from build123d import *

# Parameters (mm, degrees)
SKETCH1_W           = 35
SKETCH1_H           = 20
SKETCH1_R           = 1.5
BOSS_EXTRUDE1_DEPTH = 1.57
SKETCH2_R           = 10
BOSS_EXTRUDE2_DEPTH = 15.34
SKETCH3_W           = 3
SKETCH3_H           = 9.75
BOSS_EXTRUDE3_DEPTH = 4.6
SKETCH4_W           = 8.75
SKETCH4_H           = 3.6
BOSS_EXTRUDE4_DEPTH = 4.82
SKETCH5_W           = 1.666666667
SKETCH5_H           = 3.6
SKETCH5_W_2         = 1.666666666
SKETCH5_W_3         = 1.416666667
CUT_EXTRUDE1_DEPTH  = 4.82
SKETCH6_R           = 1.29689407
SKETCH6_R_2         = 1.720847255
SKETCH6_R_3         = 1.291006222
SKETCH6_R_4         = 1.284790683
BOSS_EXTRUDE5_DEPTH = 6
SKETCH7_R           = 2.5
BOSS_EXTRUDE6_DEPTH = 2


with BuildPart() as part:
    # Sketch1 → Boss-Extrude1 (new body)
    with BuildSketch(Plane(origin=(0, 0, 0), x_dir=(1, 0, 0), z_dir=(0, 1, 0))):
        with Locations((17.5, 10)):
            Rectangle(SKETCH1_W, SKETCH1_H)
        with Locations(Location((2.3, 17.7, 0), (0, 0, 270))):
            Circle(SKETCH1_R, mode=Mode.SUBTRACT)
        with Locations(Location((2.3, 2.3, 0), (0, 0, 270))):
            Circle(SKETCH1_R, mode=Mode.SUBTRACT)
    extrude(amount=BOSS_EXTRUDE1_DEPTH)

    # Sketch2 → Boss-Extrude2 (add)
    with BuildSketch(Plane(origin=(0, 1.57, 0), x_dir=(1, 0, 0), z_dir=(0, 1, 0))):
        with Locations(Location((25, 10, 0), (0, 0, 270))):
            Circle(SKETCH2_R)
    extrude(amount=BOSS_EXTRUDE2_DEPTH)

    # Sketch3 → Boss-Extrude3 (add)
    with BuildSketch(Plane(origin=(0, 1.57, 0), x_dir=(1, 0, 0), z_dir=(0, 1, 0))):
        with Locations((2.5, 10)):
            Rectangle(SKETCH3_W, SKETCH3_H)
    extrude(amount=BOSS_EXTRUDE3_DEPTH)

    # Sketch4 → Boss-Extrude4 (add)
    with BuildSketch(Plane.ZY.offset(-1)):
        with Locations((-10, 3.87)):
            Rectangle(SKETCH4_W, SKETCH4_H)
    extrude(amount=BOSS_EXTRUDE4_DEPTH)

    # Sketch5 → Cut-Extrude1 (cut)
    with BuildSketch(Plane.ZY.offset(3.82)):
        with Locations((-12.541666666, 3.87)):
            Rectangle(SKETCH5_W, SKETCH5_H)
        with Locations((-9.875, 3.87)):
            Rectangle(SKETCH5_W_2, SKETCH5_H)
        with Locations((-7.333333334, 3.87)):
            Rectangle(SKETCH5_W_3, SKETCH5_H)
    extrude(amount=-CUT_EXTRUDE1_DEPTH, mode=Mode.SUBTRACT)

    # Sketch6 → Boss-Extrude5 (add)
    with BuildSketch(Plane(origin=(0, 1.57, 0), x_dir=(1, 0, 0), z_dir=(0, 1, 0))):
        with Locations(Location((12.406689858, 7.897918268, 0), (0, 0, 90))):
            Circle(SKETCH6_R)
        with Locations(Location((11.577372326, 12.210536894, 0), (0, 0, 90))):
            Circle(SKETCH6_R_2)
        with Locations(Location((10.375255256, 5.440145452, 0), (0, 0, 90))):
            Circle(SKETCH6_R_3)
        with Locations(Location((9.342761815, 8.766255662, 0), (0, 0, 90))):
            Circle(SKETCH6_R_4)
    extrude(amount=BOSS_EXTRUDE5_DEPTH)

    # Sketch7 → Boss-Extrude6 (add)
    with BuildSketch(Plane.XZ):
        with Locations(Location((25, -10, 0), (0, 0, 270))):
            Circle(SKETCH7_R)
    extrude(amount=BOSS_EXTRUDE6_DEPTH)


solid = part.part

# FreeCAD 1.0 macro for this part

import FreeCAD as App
import Part
import Sketcher
from FreeCAD import Vector

doc = App.newDocument("Part")
body = doc.addObject("PartDesign::Body", "Body")

# Sketch on XZ plane
sketch1 = doc.addObject("Sketcher::SketchObject", "Sketch")
body.addObject(sketch1)
sketch1.AttachmentSupport = (doc.XZ_Plane, [""])
sketch1.MapMode = "FlatFace"
sketch1.addGeometry([
    Part.LineSegment(Vector(0, -20, 0), Vector(0, 0, 0)),  # 0
    Part.LineSegment(Vector(0, 0, 0), Vector(35, 0, 0)),  # 1
    Part.LineSegment(Vector(35, 0, 0), Vector(35, -20, 0)),  # 2
    Part.LineSegment(Vector(35, -20, 0), Vector(0, -20, 0)),  # 3
    Part.Circle(Vector(2.3, -2.3, 0), Vector(0, 0, 1), 1.5),  # 4
    Part.Circle(Vector(2.3, -17.7, 0), Vector(0, 0, 1), 1.5),  # 5
], False)
sketch1.addConstraint([
    Sketcher.Constraint("Coincident", 0, 2, 1, 1),
    Sketcher.Constraint("Coincident", 1, 2, 2, 1),
    Sketcher.Constraint("Coincident", 2, 2, 3, 1),
    Sketcher.Constraint("Coincident", 3, 2, 0, 1),
    Sketcher.Constraint("Vertical", 0),
    Sketcher.Constraint("Horizontal", 1),
    Sketcher.Constraint("Vertical", 2),
    Sketcher.Constraint("Horizontal", 3),
    Sketcher.Constraint("Coincident", 0, 2, -1, 1),
    Sketcher.Constraint("Equal", 4, 5),
    Sketcher.Constraint("Vertical", 4, 3, 5, 3),
    Sketcher.Constraint("Diameter", 4, 3.0),
    Sketcher.Constraint("DistanceX", 1, 1, 1, 2, 35.0),
    Sketcher.Constraint("DistanceY", 0, 1, 0, 2, 20.0),
    Sketcher.Constraint("DistanceX", -1, 1, 4, 3, 2.3),
    Sketcher.Constraint("DistanceY", 4, 3, -1, 1, 2.3),
    Sketcher.Constraint("DistanceY", 5, 3, -1, 1, 17.7),
])
pad1 = doc.addObject("PartDesign::Pad", "Pad")
body.addObject(pad1)
pad1.Profile = sketch1
pad1.Length = 1.57
pad1.Reversed = True

# Sketch on XZ plane
sketch2 = doc.addObject("Sketcher::SketchObject", "Sketch001")
body.addObject(sketch2)
sketch2.AttachmentSupport = (doc.XZ_Plane, [""])
sketch2.MapMode = "FlatFace"
sketch2.AttachmentOffset = App.Placement(Vector(0, 0, -1.57), App.Rotation())
sketch2.addGeometry(Part.Circle(Vector(25, -10, 0), Vector(0, 0, 1), 10), False)
sketch2.addConstraint([
    Sketcher.Constraint("Diameter", 0, 20.0),
    Sketcher.Constraint("DistanceX", -1, 1, 0, 3, 25.0),
    Sketcher.Constraint("DistanceY", 0, 3, -1, 1, 10.0),
])
pad2 = doc.addObject("PartDesign::Pad", "Pad001")
body.addObject(pad2)
pad2.Profile = sketch2
pad2.Length = 15.34
pad2.Reversed = True

# Sketch on XZ plane
sketch3 = doc.addObject("Sketcher::SketchObject", "Sketch002")
body.addObject(sketch3)
sketch3.AttachmentSupport = (doc.XZ_Plane, [""])
sketch3.MapMode = "FlatFace"
sketch3.AttachmentOffset = App.Placement(Vector(0, 0, -1.57), App.Rotation())
sketch3.addGeometry([
    Part.LineSegment(Vector(1, -14.875, 0), Vector(1, -5.125, 0)),
    Part.LineSegment(Vector(1, -5.125, 0), Vector(4, -5.125, 0)),
    Part.LineSegment(Vector(4, -5.125, 0), Vector(4, -14.875, 0)),
    Part.LineSegment(Vector(4, -14.875, 0), Vector(1, -14.875, 0)),
], False)
sketch3.addConstraint([
    Sketcher.Constraint("Coincident", 0, 2, 1, 1),
    Sketcher.Constraint("Coincident", 1, 2, 2, 1),
    Sketcher.Constraint("Coincident", 2, 2, 3, 1),
    Sketcher.Constraint("Coincident", 3, 2, 0, 1),
    Sketcher.Constraint("Vertical", 0),
    Sketcher.Constraint("Horizontal", 1),
    Sketcher.Constraint("Vertical", 2),
    Sketcher.Constraint("Horizontal", 3),
    Sketcher.Constraint("DistanceX", 1, 1, 1, 2, 3.0),
    Sketcher.Constraint("DistanceX", -1, 1, 0, 2, 1.0),
    Sketcher.Constraint("DistanceY", 0, 1, 0, 2, 9.75),
    Sketcher.Constraint("DistanceY", 0, 2, -1, 1, 5.125),
])
pad3 = doc.addObject("PartDesign::Pad", "Pad002")
body.addObject(pad3)
pad3.Profile = sketch3
pad3.Length = 4.6
pad3.Reversed = True

# Sketch on YZ plane
sketch4 = doc.addObject("Sketcher::SketchObject", "Sketch003")
body.addObject(sketch4)
sketch4.AttachmentSupport = (doc.YZ_Plane, [""])
sketch4.MapMode = "FlatFace"
sketch4.AttachmentOffset = App.Placement(Vector(0, 0, 1), App.Rotation())
sketch4.addGeometry([
    Part.LineSegment(Vector(5.67, -14.375, 0), Vector(2.07, -14.375, 0)),
    Part.LineSegment(Vector(2.07, -14.375, 0), Vector(2.07, -5.625, 0)),
    Part.LineSegment(Vector(2.07, -5.625, 0), Vector(5.67, -5.625, 0)),
    Part.LineSegment(Vector(5.67, -5.625, 0), Vector(5.67, -14.375, 0)),
], False)
sketch4.addConstraint([
    Sketcher.Constraint("Coincident", 0, 2, 1, 1),
    Sketcher.Constraint("Coincident", 1, 2, 2, 1),
    Sketcher.Constraint("Coincident", 2, 2, 3, 1),
    Sketcher.Constraint("Coincident", 3, 2, 0, 1),
    Sketcher.Constraint("Horizontal", 0),
    Sketcher.Constraint("Vertical", 1),
    Sketcher.Constraint("Horizontal", 2),
    Sketcher.Constraint("Vertical", 3),
    Sketcher.Constraint("DistanceX", 0, 2, 0, 1, 3.6),
    Sketcher.Constraint("DistanceY", 1, 1, 1, 2, 8.75),
    Sketcher.Constraint("DistanceX", -1, 1, 0, 2, 2.07),
    Sketcher.Constraint("DistanceY", 0, 2, -1, 1, 14.375),
])
pad4 = doc.addObject("PartDesign::Pad", "Pad003")
body.addObject(pad4)
pad4.Profile = sketch4
pad4.Length = 4.82
pad4.Reversed = True

# Sketch on YZ plane
sketch5 = doc.addObject("Sketcher::SketchObject", "Sketch004")
body.addObject(sketch5)
sketch5.AttachmentSupport = (doc.YZ_Plane, [""])
sketch5.MapMode = "FlatFace"
sketch5.AttachmentOffset = App.Placement(Vector(0, 0, -3.82), App.Rotation())
sketch5.addGeometry([
    Part.LineSegment(Vector(5.67, -13.375, 0), Vector(2.07, -13.375, 0)),  # 0
    Part.LineSegment(Vector(2.07, -13.375, 0), Vector(2.07, -11.708333, 0)),  # 1
    Part.LineSegment(Vector(2.07, -11.708333, 0), Vector(5.67, -11.708333, 0)),  # 2
    Part.LineSegment(Vector(5.67, -11.708333, 0), Vector(5.67, -13.375, 0)),  # 3
    Part.LineSegment(Vector(5.67, -10.708333, 0), Vector(2.07, -10.708333, 0)),  # 4
    Part.LineSegment(Vector(2.07, -10.708333, 0), Vector(2.07, -9.041667, 0)),  # 5
    Part.LineSegment(Vector(2.07, -9.041667, 0), Vector(5.67, -9.041667, 0)),  # 6
    Part.LineSegment(Vector(5.67, -9.041667, 0), Vector(5.67, -10.708333, 0)),  # 7
    Part.LineSegment(Vector(5.67, -8.041667, 0), Vector(2.07, -8.041667, 0)),  # 8
    Part.LineSegment(Vector(2.07, -8.041667, 0), Vector(2.07, -6.625, 0)),  # 9
    Part.LineSegment(Vector(2.07, -6.625, 0), Vector(5.67, -6.625, 0)),  # 10
    Part.LineSegment(Vector(5.67, -6.625, 0), Vector(5.67, -8.041667, 0)),  # 11
], False)
sketch5.addConstraint([
    Sketcher.Constraint("Coincident", 0, 2, 1, 1),
    Sketcher.Constraint("Coincident", 1, 2, 2, 1),
    Sketcher.Constraint("Coincident", 2, 2, 3, 1),
    Sketcher.Constraint("Coincident", 3, 2, 0, 1),
    Sketcher.Constraint("Coincident", 4, 2, 5, 1),
    Sketcher.Constraint("Coincident", 5, 2, 6, 1),
    Sketcher.Constraint("Coincident", 6, 2, 7, 1),
    Sketcher.Constraint("Coincident", 7, 2, 4, 1),
    Sketcher.Constraint("Coincident", 8, 2, 9, 1),
    Sketcher.Constraint("Coincident", 9, 2, 10, 1),
    Sketcher.Constraint("Coincident", 10, 2, 11, 1),
    Sketcher.Constraint("Coincident", 11, 2, 8, 1),
    Sketcher.Constraint("Horizontal", 0),
    Sketcher.Constraint("Vertical", 1),
    Sketcher.Constraint("Horizontal", 2),
    Sketcher.Constraint("Vertical", 3),
    Sketcher.Constraint("Horizontal", 4),
    Sketcher.Constraint("Vertical", 5),
    Sketcher.Constraint("Horizontal", 6),
    Sketcher.Constraint("Vertical", 7),
    Sketcher.Constraint("Horizontal", 8),
    Sketcher.Constraint("Vertical", 9),
    Sketcher.Constraint("Horizontal", 10),
    Sketcher.Constraint("Vertical", 11),
    Sketcher.Constraint("Vertical", 1, 2, 4, 2),
    Sketcher.Constraint("Vertical", 3, 2, 6, 2),
    Sketcher.Constraint("Vertical", 5, 2, 8, 2),
    Sketcher.Constraint("Vertical", 7, 2, 10, 2),
    Sketcher.Constraint("Equal", 3, 5),
    Sketcher.Constraint("DistanceX", 0, 2, 0, 1, 3.6),
    Sketcher.Constraint("DistanceY", 1, 2, 4, 2, 1.0),
    Sketcher.Constraint("DistanceY", 5, 2, 8, 2, 1.0),
    Sketcher.Constraint("DistanceX", -1, 1, 0, 2, 2.07),
    Sketcher.Constraint("DistanceY", 0, 2, -1, 1, 13.375),
    Sketcher.Constraint("DistanceY", 9, 2, -1, 1, 6.625),
    Sketcher.Constraint("DistanceY", 1, 1, 1, 2, 1.666667),
])
pocket1 = doc.addObject("PartDesign::Pocket", "Pocket")
body.addObject(pocket1)
pocket1.Profile = sketch5
pocket1.Length = 4.82
pocket1.Reversed = True

# Sketch on XZ plane
sketch6 = doc.addObject("Sketcher::SketchObject", "Sketch005")
body.addObject(sketch6)
sketch6.AttachmentSupport = (doc.XZ_Plane, [""])
sketch6.MapMode = "FlatFace"
sketch6.AttachmentOffset = App.Placement(Vector(0, 0, -1.57), App.Rotation())
sketch6.addGeometry([
    Part.Circle(Vector(12.40669, -7.897918, 0), Vector(0, 0, 1), 1.296894),
    Part.Circle(Vector(11.577372, -12.210537, 0), Vector(0, 0, 1), 1.720847),
    Part.Circle(Vector(10.375255, -5.440145, 0), Vector(0, 0, 1), 1.291006),
    Part.Circle(Vector(9.342762, -8.766256, 0), Vector(0, 0, 1), 1.284791),
], False)
sketch6.addConstraint([
    Sketcher.Constraint("Diameter", 0, 2.593788),
    Sketcher.Constraint("Diameter", 3, 2.569581),
    Sketcher.Constraint("Diameter", 1, 3.441695),
    Sketcher.Constraint("Diameter", 2, 2.582012),
    Sketcher.Constraint("DistanceX", -1, 1, 0, 3, 12.40669),
    Sketcher.Constraint("DistanceY", 0, 3, -1, 1, 7.897918),
    Sketcher.Constraint("DistanceX", -1, 1, 3, 3, 9.342762),
    Sketcher.Constraint("DistanceY", 1, 3, 0, 3, 4.312619),
    Sketcher.Constraint("DistanceY", 1, 3, 2, 3, 6.770391),
    Sketcher.Constraint("DistanceY", 3, 3, 2, 3, 3.32611),
    Sketcher.Constraint("DistanceX", 3, 3, 1, 3, 2.234611),
    Sketcher.Constraint("DistanceX", -1, 1, 2, 3, 10.375255),
])
pad5 = doc.addObject("PartDesign::Pad", "Pad004")
body.addObject(pad5)
pad5.Profile = sketch6
pad5.Length = 6
pad5.Reversed = True

# Sketch on XZ plane
sketch7 = doc.addObject("Sketcher::SketchObject", "Sketch006")
body.addObject(sketch7)
sketch7.AttachmentSupport = (doc.XZ_Plane, [""])
sketch7.MapMode = "FlatFace"
sketch7.addGeometry(Part.Circle(Vector(25, -10, 0), Vector(0, 0, 1), 2.5), False)
sketch7.addConstraint([
    Sketcher.Constraint("Diameter", 0, 5.0),
    Sketcher.Constraint("DistanceX", -1, 1, 0, 3, 25.0),
    Sketcher.Constraint("DistanceY", 0, 3, -1, 1, 10.0),
])
pad6 = doc.addObject("PartDesign::Pad", "Pad005")
body.addObject(pad6)
pad6.Profile = sketch7
pad6.Length = 2

doc.recompute()
